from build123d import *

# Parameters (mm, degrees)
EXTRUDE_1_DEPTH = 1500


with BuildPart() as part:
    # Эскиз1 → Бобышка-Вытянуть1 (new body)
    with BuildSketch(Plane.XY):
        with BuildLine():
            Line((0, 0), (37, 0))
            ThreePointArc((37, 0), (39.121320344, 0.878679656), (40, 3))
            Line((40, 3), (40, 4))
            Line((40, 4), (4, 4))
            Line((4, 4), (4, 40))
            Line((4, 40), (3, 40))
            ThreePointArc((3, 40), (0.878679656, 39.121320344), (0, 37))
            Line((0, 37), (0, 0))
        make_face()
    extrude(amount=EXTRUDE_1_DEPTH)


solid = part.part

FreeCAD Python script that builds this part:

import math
import FreeCAD as App
import Part
import Sketcher

V = App.Vector
Q = App.Units.Quantity

doc = App.newDocument("Part")
body = doc.addObject("PartDesign::Body", "Body")

# Sketch on XY plane
sketch1 = doc.addObject("Sketcher::SketchObject", "Sketch")
body.addObject(sketch1)
sketch1.AttachmentSupport = (doc.XY_Plane, [""])
sketch1.MapMode = "FlatFace"
sketch1.addGeometry([
    Part.LineSegment(V(0, 0, 0), V(37, 0, 0)),  # 0
    Part.ArcOfCircle(Part.Circle(V(37, 3, 0), V(0, 0, 1), 3), math.radians(-90), math.radians(0)),  # 1
    Part.LineSegment(V(40, 3, 0), V(40, 4, 0)),  # 2
    Part.LineSegment(V(40, 4, 0), V(4, 4, 0)),  # 3
    Part.LineSegment(V(4, 4, 0), V(4, 40, 0)),  # 4
    Part.LineSegment(V(4, 40, 0), V(3, 40, 0)),  # 5
    Part.ArcOfCircle(Part.Circle(V(3, 37, 0), V(0, 0, 1), 3), math.radians(90), math.radians(180)),  # 6
    Part.LineSegment(V(0, 37, 0), V(0, 0, 0)),  # 7
], False)
sketch1.addConstraint([
    Sketcher.Constraint("Tangent", 0, 2, 1, 1),
    Sketcher.Constraint("Tangent", 1, 2, 2, 1),
    Sketcher.Constraint("Coincident", 2, 2, 3, 1),
    Sketcher.Constraint("Coincident", 3, 2, 4, 1),
    Sketcher.Constraint("Coincident", 4, 2, 5, 1),
    Sketcher.Constraint("Tangent", 5, 2, 6, 1),
    Sketcher.Constraint("Tangent", 6, 2, 7, 1),
    Sketcher.Constraint("Coincident", 7, 2, 0, 1),
    Sketcher.Constraint("Horizontal", 0),
    Sketcher.Constraint("Vertical", 2),
    Sketcher.Constraint("Horizontal", 3),
    Sketcher.Constraint("Vertical", 4),
    Sketcher.Constraint("Horizontal", 5),
    Sketcher.Constraint("Vertical", 7),
    Sketcher.Constraint("Coincident", 7, 2, -1, 1),
    Sketcher.Constraint("Equal", 1, 6),
    Sketcher.Constraint("Equal", 5, 2),
    Sketcher.Constraint("Equal", 3, 4),
    Sketcher.Constraint("Radius", 1, Q("3 mm")),
    Sketcher.Constraint("DistanceX", 0, 1, 0, 2, Q("37 mm")),
    Sketcher.Constraint("DistanceX", 3, 2, 3, 1, Q("36 mm")),
])
pad1 = doc.addObject("PartDesign::Pad", "Pad")
body.addObject(pad1)
pad1.Profile = sketch1
pad1.Length = 1500

doc.recompute()
